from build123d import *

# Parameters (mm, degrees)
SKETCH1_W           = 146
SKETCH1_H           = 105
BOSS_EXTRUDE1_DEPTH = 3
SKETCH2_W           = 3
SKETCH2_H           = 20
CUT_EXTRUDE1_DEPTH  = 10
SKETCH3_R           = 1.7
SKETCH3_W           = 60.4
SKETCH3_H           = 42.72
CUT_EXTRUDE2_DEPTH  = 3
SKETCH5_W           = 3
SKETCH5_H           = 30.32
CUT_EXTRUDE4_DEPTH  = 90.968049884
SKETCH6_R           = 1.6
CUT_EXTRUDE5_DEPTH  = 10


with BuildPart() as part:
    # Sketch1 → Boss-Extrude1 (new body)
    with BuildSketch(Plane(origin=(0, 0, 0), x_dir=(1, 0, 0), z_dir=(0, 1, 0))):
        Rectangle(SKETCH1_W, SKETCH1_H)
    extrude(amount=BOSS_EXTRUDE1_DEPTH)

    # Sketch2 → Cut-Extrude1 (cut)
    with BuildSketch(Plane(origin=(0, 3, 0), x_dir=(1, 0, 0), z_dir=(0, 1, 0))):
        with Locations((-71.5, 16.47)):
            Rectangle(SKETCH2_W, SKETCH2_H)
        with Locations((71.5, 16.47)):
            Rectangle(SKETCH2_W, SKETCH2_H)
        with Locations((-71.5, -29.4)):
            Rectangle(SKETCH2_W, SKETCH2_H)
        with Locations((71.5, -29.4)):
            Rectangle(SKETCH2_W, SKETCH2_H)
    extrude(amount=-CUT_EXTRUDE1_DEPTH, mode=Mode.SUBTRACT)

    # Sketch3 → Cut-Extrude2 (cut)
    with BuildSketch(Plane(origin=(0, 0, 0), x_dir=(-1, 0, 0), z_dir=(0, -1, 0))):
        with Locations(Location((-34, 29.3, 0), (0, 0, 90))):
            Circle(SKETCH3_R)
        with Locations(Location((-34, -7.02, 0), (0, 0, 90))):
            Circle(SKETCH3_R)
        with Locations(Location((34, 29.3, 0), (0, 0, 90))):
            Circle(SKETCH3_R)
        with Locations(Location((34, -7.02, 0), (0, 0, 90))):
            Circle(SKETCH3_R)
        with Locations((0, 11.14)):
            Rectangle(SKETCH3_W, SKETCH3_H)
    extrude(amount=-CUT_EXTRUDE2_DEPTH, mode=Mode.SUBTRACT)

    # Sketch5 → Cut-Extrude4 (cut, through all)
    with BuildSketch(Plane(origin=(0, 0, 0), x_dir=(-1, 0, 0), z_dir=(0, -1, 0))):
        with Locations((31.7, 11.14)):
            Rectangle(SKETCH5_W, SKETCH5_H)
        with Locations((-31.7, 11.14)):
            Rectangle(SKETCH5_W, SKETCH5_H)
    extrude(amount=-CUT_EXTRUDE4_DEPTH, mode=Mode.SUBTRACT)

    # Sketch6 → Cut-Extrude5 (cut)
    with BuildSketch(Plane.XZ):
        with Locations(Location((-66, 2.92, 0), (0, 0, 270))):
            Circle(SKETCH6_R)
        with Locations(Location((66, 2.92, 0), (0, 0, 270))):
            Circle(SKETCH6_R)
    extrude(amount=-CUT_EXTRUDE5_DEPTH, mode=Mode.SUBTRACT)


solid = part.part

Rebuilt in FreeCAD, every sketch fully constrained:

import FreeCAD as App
import Part
import Sketcher

V = App.Vector

doc = App.newDocument("Part")
body = doc.addObject("PartDesign::Body", "Body")

# Sketch on XZ plane
sketch1 = body.newObject("Sketcher::SketchObject", "Sketch")
sketch1.AttachmentSupport = (doc.getObject("XZ_Plane"), [""])
sketch1.MapMode = "FlatFace"
sketch1.addGeometry([
    Part.LineSegment(V(-73, -52.5, 0), V(-73, 52.5, 0)),
    Part.LineSegment(V(-73, 52.5, 0), V(73, 52.5, 0)),
    Part.LineSegment(V(73, 52.5, 0), V(73, -52.5, 0)),
    Part.LineSegment(V(73, -52.5, 0), V(-73, -52.5, 0)),
], False)
sketch1.addConstraint([
    Sketcher.Constraint("Coincident", 0, 2, 1, 1),
    Sketcher.Constraint("Coincident", 1, 2, 2, 1),
    Sketcher.Constraint("Coincident", 2, 2, 3, 1),
    Sketcher.Constraint("Coincident", 3, 2, 0, 1),
    Sketcher.Constraint("Vertical", 0),
    Sketcher.Constraint("Horizontal", 1),
    Sketcher.Constraint("Vertical", 2),
    Sketcher.Constraint("Horizontal", 3),
    Sketcher.Constraint("Symmetric", 0, 2, 2, 2, -1, 1),
    Sketcher.Constraint("DistanceX", 1, 1, 1, 2, 146.0),
    Sketcher.Constraint("DistanceY", 0, 1, 0, 2, 105.0),
])
pad1 = body.newObject("PartDesign::Pad", "Pad")
pad1.Profile = sketch1
pad1.Length = 3
pad1.Reversed = True

# Sketch on XZ plane
sketch2 = body.newObject("Sketcher::SketchObject", "Sketch001")
sketch2.AttachmentSupport = (doc.getObject("XZ_Plane"), [""])
sketch2.MapMode = "FlatFace"
sketch2.AttachmentOffset = App.Placement(V(0, 0, -3), App.Rotation())
sketch2.addGeometry([
    Part.LineSegment(V(-73, -26.47, 0), V(-73, -6.47, 0)),  # 0
    Part.LineSegment(V(-73, -6.47, 0), V(-70, -6.47, 0)),  # 1
    Part.LineSegment(V(-70, -6.47, 0), V(-70, -26.47, 0)),  # 2
    Part.LineSegment(V(-70, -26.47, 0), V(-73, -26.47, 0)),  # 3
    Part.LineSegment(V(70, -26.47, 0), V(70, -6.47, 0)),  # 4
    Part.LineSegment(V(70, -6.47, 0), V(73, -6.47, 0)),  # 5
    Part.LineSegment(V(73, -6.47, 0), V(73, -26.47, 0)),  # 6
    Part.LineSegment(V(73, -26.47, 0), V(70, -26.47, 0)),  # 7
    Part.LineSegment(V(-73, 19.4, 0), V(-73, 39.4, 0)),  # 8
    Part.LineSegment(V(-73, 39.4, 0), V(-70, 39.4, 0)),  # 9
    Part.LineSegment(V(-70, 39.4, 0), V(-70, 19.4, 0)),  # 10
    Part.LineSegment(V(-70, 19.4, 0), V(-73, 19.4, 0)),  # 11
    Part.LineSegment(V(70, 19.4, 0), V(70, 39.4, 0)),  # 12
    Part.LineSegment(V(70, 39.4, 0), V(73, 39.4, 0)),  # 13
    Part.LineSegment(V(73, 39.4, 0), V(73, 19.4, 0)),  # 14
    Part.LineSegment(V(73, 19.4, 0), V(70, 19.4, 0)),  # 15
], False)
sketch2.addConstraint([
    Sketcher.Constraint("Coincident", 0, 2, 1, 1),
    Sketcher.Constraint("Coincident", 1, 2, 2, 1),
    Sketcher.Constraint("Coincident", 2, 2, 3, 1),
    Sketcher.Constraint("Coincident", 3, 2, 0, 1),
    Sketcher.Constraint("Coincident", 4, 2, 5, 1),
    Sketcher.Constraint("Coincident", 5, 2, 6, 1),
    Sketcher.Constraint("Coincident", 6, 2, 7, 1),
    Sketcher.Constraint("Coincident", 7, 2, 4, 1),
    Sketcher.Constraint("Coincident", 8, 2, 9, 1),
    Sketcher.Constraint("Coincident", 9, 2, 10, 1),
    Sketcher.Constraint("Coincident", 10, 2, 11, 1),
    Sketcher.Constraint("Coincident", 11, 2, 8, 1),
    Sketcher.Constraint("Coincident", 12, 2, 13, 1),
    Sketcher.Constraint("Coincident", 13, 2, 14, 1),
    Sketcher.Constraint("Coincident", 14, 2, 15, 1),
    Sketcher.Constraint("Coincident", 15, 2, 12, 1),
    Sketcher.Constraint("Vertical", 0),
    Sketcher.Constraint("Horizontal", 1),
    Sketcher.Constraint("Vertical", 2),
    Sketcher.Constraint("Horizontal", 3),
    Sketcher.Constraint("Vertical", 4),
    Sketcher.Constraint("Horizontal", 5),
    Sketcher.Constraint("Vertical", 6),
    Sketcher.Constraint("Horizontal", 7),
    Sketcher.Constraint("Vertical", 8),
    Sketcher.Constraint("Horizontal", 9),
    Sketcher.Constraint("Vertical", 10),
    Sketcher.Constraint("Horizontal", 11),
    Sketcher.Constraint("Vertical", 12),
    Sketcher.Constraint("Horizontal", 13),
    Sketcher.Constraint("Vertical", 14),
    Sketcher.Constraint("Horizontal", 15),
    Sketcher.Constraint("Symmetric", 1, 2, 4, 2, -2),
    Sketcher.Constraint("Symmetric", 3, 2, 6, 2, -2),
    Sketcher.Constraint("Symmetric", 9, 2, 12, 2, -2),
    Sketcher.Constraint("Symmetric", 11, 2, 14, 2, -2),
    Sketcher.Constraint("Vertical", 3, 2, 8, 2),
    Sketcher.Constraint("Vertical", 2, 2, 9, 2),
    Sketcher.Constraint("Equal", 6, 8),
    Sketcher.Constraint("DistanceX", 1, 1, 1, 2, 3.0),
    Sketcher.Constraint("DistanceY", 0, 1, 0, 2, 20.0),
    Sketcher.Constraint("DistanceX", 0, 2, -1, 1, 73.0),
    Sketcher.Constraint("DistanceY", -1, 1, 8, 2, 39.4),
    Sketcher.Constraint("DistanceY", 0, 2, -1, 1, 6.47),
])
pocket1 = body.newObject("PartDesign::Pocket", "Pocket")
pocket1.Profile = sketch2
pocket1.Length = 10
pocket1.Reversed = True

# Sketch on XZ plane
sketch3 = body.newObject("Sketcher::SketchObject", "Sketch002")
sketch3.AttachmentSupport = (doc.getObject("XZ_Plane"), [""])
sketch3.MapMode = "FlatFace"
sketch3.addGeometry([
    Part.Circle(V(34, -29.3, 0), V(0, 0, 1), 1.7),  # 0
    Part.Circle(V(34, 7.02, 0), V(0, 0, 1), 1.7),  # 1
    Part.Circle(V(-34, -29.3, 0), V(0, 0, 1), 1.7),  # 2
    Part.Circle(V(-34, 7.02, 0), V(0, 0, 1), 1.7),  # 3
    Part.LineSegment(V(30.2, -32.5, 0), V(30.2, 10.22, 0)),  # 4
    Part.LineSegment(V(30.2, 10.22, 0), V(-30.2, 10.22, 0)),  # 5
    Part.LineSegment(V(-30.2, 10.22, 0), V(-30.2, -32.5, 0)),  # 6
    Part.LineSegment(V(-30.2, -32.5, 0), V(30.2, -32.5, 0)),  # 7
], False)
sketch3.addConstraint([
    Sketcher.Constraint("Coincident", 4, 2, 5, 1),
    Sketcher.Constraint("Coincident", 5, 2, 6, 1),
    Sketcher.Constraint("Coincident", 6, 2, 7, 1),
    Sketcher.Constraint("Coincident", 7, 2, 4, 1),
    Sketcher.Constraint("Vertical", 4),
    Sketcher.Constraint("Horizontal", 5),
    Sketcher.Constraint("Vertical", 6),
    Sketcher.Constraint("Horizontal", 7),
    Sketcher.Constraint("Equal", 0, 1),
    Sketcher.Constraint("Equal", 1, 2),
    Sketcher.Constraint("Equal", 2, 3),
    Sketcher.Constraint("Symmetric", 0, 3, 2, 3, -2),
    Sketcher.Constraint("Symmetric", 1, 3, 3, 3, -2),
    Sketcher.Constraint("Vertical", 0, 3, 1, 3),
    Sketcher.Constraint("Diameter", 0, 3.4),
    Sketcher.Constraint("DistanceX", 5, 2, 5, 1, 60.4),
    Sketcher.Constraint("DistanceX", -1, 1, 0, 3, 34.0),
    Sketcher.Constraint("DistanceY", 4, 1, 4, 2, 42.72),
    Sketcher.Constraint("DistanceY", 0, 3, -1, 1, 29.3),
    Sketcher.Constraint("DistanceX", -1, 1, 4, 2, 30.2),
    Sketcher.Constraint("DistanceY", 6, 2, -1, 1, 32.5),
    Sketcher.Constraint("DistanceY", 1, 3, 4, 2, 3.2),
])
pocket2 = body.newObject("PartDesign::Pocket", "Pocket001")
pocket2.Profile = sketch3
pocket2.Length = 3

# Sketch on XZ plane
sketch4 = body.newObject("Sketcher::SketchObject", "Sketch003")
sketch4.AttachmentSupport = (doc.getObject("XZ_Plane"), [""])
sketch4.MapMode = "FlatFace"
sketch4.addGeometry([
    Part.LineSegment(V(-30.2, -26.3, 0), V(-30.2, 4.02, 0)),  # 0
    Part.LineSegment(V(-30.2, 4.02, 0), V(-33.2, 4.02, 0)),  # 1
    Part.LineSegment(V(-33.2, 4.02, 0), V(-33.2, -26.3, 0)),  # 2
    Part.LineSegment(V(-33.2, -26.3, 0), V(-30.2, -26.3, 0)),  # 3
    Part.LineSegment(V(33.2, -26.3, 0), V(33.2, 4.02, 0)),  # 4
    Part.LineSegment(V(33.2, 4.02, 0), V(30.2, 4.02, 0)),  # 5
    Part.LineSegment(V(30.2, 4.02, 0), V(30.2, -26.3, 0)),  # 6
    Part.LineSegment(V(30.2, -26.3, 0), V(33.2, -26.3, 0)),  # 7
], False)
sketch4.addConstraint([
    Sketcher.Constraint("Coincident", 0, 2, 1, 1),
    Sketcher.Constraint("Coincident", 1, 2, 2, 1),
    Sketcher.Constraint("Coincident", 2, 2, 3, 1),
    Sketcher.Constraint("Coincident", 3, 2, 0, 1),
    Sketcher.Constraint("Coincident", 4, 2, 5, 1),
    Sketcher.Constraint("Coincident", 5, 2, 6, 1),
    Sketcher.Constraint("Coincident", 6, 2, 7, 1),
    Sketcher.Constraint("Coincident", 7, 2, 4, 1),
    Sketcher.Constraint("Vertical", 0),
    Sketcher.Constraint("Horizontal", 1),
    Sketcher.Constraint("Vertical", 2),
    Sketcher.Constraint("Horizontal", 3),
    Sketcher.Constraint("Vertical", 4),
    Sketcher.Constraint("Horizontal", 5),
    Sketcher.Constraint("Vertical", 6),
    Sketcher.Constraint("Horizontal", 7),
    Sketcher.Constraint("Symmetric", 1, 2, 4, 2, -2),
    Sketcher.Constraint("Symmetric", 3, 2, 6, 2, -2),
    Sketcher.Constraint("DistanceX", 1, 2, 1, 1, 3.0),
    Sketcher.Constraint("DistanceY", 0, 1, 0, 2, 30.32),
    Sketcher.Constraint("DistanceX", 0, 2, -1, 1, 30.2),
    Sketcher.Constraint("DistanceY", 2, 2, -1, 1, 26.3),
])
pocket3 = body.newObject("PartDesign::Pocket", "Pocket002")
pocket3.Profile = sketch4
pocket3.Type = "ThroughAll"

# Sketch on XZ plane
sketch5 = body.newObject("Sketcher::SketchObject", "Sketch004")
sketch5.AttachmentSupport = (doc.getObject("XZ_Plane"), [""])
sketch5.MapMode = "FlatFace"
sketch5.addGeometry([
    Part.Circle(V(-66, 2.92, 0), V(0, 0, 1), 1.6),
    Part.Circle(V(66, 2.92, 0), V(0, 0, 1), 1.6),
], False)
sketch5.addConstraint([
    Sketcher.Constraint("Equal", 0, 1),
    Sketcher.Constraint("Symmetric", 0, 3, 1, 3, -2),
    Sketcher.Constraint("Diameter", 0, 3.2),
    Sketcher.Constraint("DistanceX", 0, 3, -1, 1, 66.0),
    Sketcher.Constraint("DistanceY", -1, 1, 0, 3, 2.92),
])
pocket4 = body.newObject("PartDesign::Pocket", "Pocket003")
pocket4.Profile = sketch5
pocket4.Length = 10

doc.recompute()
